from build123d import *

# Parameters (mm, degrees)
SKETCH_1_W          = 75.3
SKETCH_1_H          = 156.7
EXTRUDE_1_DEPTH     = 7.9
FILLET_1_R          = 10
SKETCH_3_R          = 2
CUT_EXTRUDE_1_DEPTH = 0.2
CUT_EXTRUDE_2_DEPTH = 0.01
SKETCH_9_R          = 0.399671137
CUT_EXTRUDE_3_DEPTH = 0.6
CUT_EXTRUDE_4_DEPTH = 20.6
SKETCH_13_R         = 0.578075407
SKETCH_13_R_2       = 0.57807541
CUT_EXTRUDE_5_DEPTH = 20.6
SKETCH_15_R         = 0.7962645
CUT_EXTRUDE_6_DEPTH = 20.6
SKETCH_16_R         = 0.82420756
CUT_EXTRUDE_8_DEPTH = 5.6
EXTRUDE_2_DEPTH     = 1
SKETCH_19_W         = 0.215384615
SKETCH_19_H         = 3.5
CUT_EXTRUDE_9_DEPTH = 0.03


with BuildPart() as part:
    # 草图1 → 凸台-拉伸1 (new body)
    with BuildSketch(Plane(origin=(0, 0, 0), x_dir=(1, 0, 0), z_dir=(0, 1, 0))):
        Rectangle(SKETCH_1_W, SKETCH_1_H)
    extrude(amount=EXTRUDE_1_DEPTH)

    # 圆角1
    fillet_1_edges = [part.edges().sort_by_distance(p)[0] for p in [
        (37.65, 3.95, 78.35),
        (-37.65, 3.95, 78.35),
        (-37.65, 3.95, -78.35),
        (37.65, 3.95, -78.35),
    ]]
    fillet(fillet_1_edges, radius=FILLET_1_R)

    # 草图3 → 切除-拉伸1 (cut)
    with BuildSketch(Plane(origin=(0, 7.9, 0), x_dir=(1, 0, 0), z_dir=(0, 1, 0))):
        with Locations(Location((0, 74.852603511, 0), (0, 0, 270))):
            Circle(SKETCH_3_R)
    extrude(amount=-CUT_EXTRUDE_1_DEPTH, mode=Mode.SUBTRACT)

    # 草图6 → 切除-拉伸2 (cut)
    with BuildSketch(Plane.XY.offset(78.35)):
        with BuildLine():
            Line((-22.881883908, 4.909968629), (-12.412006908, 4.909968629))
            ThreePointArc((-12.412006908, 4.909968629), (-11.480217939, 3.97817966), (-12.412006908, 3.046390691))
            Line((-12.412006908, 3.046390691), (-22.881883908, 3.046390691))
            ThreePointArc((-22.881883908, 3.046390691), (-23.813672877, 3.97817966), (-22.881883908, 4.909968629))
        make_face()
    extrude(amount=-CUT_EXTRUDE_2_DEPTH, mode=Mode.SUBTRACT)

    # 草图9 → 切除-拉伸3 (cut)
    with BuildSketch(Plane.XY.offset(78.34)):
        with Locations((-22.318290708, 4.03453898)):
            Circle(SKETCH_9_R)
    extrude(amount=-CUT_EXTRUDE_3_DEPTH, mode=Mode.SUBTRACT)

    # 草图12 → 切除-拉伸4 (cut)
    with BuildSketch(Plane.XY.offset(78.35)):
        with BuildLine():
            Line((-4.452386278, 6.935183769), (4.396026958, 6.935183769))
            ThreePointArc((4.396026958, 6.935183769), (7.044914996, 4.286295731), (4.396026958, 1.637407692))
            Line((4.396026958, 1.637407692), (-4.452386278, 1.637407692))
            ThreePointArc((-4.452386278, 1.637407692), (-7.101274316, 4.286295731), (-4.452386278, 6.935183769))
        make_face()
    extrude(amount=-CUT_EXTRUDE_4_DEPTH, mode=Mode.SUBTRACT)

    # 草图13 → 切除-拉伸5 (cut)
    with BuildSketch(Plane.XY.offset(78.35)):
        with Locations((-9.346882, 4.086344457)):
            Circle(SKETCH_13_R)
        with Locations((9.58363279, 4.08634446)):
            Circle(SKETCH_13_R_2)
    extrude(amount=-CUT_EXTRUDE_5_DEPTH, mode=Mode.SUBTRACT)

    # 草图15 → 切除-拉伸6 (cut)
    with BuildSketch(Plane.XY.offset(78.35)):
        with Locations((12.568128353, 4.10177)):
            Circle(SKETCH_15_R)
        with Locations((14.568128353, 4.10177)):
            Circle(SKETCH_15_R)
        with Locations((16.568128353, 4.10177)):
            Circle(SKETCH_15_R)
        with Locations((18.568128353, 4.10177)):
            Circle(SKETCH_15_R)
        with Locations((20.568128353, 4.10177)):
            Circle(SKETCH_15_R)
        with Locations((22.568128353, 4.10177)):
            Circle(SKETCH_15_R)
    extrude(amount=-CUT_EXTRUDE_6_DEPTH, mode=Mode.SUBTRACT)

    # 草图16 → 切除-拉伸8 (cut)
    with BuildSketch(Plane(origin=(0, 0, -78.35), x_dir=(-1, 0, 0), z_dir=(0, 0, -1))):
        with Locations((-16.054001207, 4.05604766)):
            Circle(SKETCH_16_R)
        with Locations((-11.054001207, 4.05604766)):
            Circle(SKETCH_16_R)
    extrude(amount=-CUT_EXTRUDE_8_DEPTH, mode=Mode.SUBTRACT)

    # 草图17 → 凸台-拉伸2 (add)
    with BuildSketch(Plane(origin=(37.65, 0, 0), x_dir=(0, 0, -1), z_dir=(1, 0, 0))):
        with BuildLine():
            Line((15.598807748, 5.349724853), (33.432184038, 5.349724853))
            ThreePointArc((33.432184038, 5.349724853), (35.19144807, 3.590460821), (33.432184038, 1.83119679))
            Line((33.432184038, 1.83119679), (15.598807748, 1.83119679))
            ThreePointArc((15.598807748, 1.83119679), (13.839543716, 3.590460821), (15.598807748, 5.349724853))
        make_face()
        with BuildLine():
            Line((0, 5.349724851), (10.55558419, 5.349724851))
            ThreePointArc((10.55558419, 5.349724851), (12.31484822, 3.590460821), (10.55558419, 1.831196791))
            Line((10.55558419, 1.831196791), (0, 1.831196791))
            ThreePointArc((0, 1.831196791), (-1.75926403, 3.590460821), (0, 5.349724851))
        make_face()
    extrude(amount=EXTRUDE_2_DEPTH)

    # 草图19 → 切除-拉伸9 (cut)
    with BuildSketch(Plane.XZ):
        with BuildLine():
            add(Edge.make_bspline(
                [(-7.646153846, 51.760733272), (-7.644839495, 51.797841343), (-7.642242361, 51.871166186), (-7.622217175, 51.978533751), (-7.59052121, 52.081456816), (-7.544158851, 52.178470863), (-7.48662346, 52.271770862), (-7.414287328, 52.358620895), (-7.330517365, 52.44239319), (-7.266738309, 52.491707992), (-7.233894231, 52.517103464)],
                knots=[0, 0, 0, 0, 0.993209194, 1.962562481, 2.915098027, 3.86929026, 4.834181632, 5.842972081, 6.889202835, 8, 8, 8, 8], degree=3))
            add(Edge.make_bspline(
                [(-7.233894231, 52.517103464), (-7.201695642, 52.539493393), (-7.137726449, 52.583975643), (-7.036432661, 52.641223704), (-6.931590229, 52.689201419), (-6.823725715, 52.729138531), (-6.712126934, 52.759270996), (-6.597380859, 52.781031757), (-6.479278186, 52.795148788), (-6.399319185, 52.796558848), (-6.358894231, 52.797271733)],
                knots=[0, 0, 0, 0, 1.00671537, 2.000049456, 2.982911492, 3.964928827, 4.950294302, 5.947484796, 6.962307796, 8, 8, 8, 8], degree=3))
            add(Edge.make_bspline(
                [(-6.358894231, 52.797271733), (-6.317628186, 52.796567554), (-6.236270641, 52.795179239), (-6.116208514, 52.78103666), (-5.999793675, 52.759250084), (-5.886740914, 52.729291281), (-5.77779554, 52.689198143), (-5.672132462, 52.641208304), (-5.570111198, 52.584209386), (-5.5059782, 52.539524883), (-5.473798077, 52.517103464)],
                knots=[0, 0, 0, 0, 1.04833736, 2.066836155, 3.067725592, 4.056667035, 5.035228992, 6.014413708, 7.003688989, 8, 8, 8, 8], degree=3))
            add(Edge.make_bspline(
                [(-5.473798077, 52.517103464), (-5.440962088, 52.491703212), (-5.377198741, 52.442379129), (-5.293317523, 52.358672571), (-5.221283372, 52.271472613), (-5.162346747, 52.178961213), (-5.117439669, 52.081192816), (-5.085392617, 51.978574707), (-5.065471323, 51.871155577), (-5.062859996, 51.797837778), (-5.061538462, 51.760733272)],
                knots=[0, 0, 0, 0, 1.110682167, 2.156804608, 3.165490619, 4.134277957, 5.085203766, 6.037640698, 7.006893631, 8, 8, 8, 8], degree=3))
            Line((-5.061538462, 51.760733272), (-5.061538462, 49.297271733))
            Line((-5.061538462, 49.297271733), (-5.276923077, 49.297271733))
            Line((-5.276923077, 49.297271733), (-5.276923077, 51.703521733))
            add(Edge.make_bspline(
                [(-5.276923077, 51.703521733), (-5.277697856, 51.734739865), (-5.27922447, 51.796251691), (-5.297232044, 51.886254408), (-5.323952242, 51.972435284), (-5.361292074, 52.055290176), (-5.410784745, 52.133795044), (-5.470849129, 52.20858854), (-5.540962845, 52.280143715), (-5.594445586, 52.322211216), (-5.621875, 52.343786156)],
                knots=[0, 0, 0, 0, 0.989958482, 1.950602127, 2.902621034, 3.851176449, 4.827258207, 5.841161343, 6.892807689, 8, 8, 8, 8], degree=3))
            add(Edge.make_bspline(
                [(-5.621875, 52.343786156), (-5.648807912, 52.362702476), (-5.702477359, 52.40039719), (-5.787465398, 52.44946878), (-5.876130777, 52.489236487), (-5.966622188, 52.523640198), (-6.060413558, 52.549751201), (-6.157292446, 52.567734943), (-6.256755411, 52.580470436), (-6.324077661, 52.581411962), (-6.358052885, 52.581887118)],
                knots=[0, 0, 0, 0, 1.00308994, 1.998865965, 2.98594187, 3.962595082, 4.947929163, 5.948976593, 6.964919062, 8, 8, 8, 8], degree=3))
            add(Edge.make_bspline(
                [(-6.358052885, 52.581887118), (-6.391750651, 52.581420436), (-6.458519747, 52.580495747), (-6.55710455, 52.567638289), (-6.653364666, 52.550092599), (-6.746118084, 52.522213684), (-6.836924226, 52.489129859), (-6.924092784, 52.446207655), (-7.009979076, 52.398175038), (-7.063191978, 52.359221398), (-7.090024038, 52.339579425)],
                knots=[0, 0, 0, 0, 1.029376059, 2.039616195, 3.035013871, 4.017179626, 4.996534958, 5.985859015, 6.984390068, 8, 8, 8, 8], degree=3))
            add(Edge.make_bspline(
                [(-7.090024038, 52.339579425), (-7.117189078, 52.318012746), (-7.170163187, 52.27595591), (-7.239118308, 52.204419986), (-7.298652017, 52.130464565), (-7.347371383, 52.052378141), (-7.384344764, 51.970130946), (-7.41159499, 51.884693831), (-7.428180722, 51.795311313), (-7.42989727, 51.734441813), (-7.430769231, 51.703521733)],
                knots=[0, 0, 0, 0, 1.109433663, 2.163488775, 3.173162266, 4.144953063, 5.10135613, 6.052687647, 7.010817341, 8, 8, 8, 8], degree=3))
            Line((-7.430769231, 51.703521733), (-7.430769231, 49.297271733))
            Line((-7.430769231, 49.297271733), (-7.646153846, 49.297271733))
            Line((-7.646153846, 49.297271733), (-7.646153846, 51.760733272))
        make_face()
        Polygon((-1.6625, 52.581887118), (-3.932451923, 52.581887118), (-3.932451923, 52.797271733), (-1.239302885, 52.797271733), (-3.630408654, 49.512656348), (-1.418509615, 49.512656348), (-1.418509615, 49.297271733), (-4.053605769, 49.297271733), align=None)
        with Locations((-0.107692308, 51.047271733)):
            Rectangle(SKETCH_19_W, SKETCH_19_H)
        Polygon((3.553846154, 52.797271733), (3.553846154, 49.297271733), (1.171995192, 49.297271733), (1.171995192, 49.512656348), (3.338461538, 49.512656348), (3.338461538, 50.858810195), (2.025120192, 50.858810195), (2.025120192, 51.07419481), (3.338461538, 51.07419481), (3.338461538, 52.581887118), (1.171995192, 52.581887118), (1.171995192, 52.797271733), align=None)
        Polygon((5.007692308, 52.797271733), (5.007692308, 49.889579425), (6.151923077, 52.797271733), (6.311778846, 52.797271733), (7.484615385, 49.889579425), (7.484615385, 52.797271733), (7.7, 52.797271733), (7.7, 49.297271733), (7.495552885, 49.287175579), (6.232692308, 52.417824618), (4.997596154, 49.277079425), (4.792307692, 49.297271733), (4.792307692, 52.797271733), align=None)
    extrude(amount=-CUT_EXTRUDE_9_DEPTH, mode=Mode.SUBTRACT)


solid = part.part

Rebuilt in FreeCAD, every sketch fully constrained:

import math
import FreeCAD as App
import Part
import Sketcher
from FreeCAD import Vector
Q = App.Units.Quantity


def edges_at(feature, points):
    """Names of the edges that pass closest to the given points."""
    edges = feature.Shape.Edges
    near = lambda p: min(range(len(edges)), key=lambda i: edges[i].distToShape(Part.Vertex(*p))[0])
    return sorted({f"Edge{near(p) + 1}" for p in points})

doc = App.newDocument("Part")
body = doc.addObject("PartDesign::Body", "Body")

# Sketch on XZ plane
sketch1 = doc.addObject("Sketcher::SketchObject", "Sketch")
body.addObject(sketch1)
sketch1.AttachmentSupport = (doc.XZ_Plane, [""])
sketch1.MapMode = "FlatFace"
sketch1.addGeometry(Part.LineSegment(Vector(-37.65, -78.35, 0), Vector(-37.65, 78.35, 0)), False)
sketch1.addGeometry(Part.LineSegment(Vector(-37.65, 78.35, 0), Vector(37.65, 78.35, 0)), False)
sketch1.addGeometry(Part.LineSegment(Vector(37.65, 78.35, 0), Vector(37.65, -78.35, 0)), False)
sketch1.addGeometry(Part.LineSegment(Vector(37.65, -78.35, 0), Vector(-37.65, -78.35, 0)), False)
sketch1.addConstraint(Sketcher.Constraint("Coincident", 0, 2, 1, 1))
sketch1.addConstraint(Sketcher.Constraint("Coincident", 1, 2, 2, 1))
sketch1.addConstraint(Sketcher.Constraint("Coincident", 2, 2, 3, 1))
sketch1.addConstraint(Sketcher.Constraint("Coincident", 3, 2, 0, 1))
sketch1.addConstraint(Sketcher.Constraint("Vertical", 0))
sketch1.addConstraint(Sketcher.Constraint("Horizontal", 1))
sketch1.addConstraint(Sketcher.Constraint("Vertical", 2))
sketch1.addConstraint(Sketcher.Constraint("Horizontal", 3))
sketch1.addConstraint(Sketcher.Constraint("Symmetric", 0, 2, 2, 2, -1, 1))
sketch1.addConstraint(Sketcher.Constraint("DistanceX", 1, 1, 1, 2, Q("75.3 mm")))
sketch1.addConstraint(Sketcher.Constraint("DistanceY", 0, 1, 0, 2, Q("156.7 mm")))
pad1 = doc.addObject("PartDesign::Pad", "Pad")
body.addObject(pad1)
pad1.Profile = sketch1
pad1.Length = 7.9
pad1.Reversed = True
doc.recompute()

fillet = doc.addObject("PartDesign::Fillet", "Fillet")
body.addObject(fillet)
fillet.Base = (pad1, edges_at(pad1, [
    (37.65, 3.95, 78.35),
    (-37.65, 3.95, 78.35),
    (-37.65, 3.95, -78.35),
    (37.65, 3.95, -78.35),
]))
fillet.Radius = 10

# Sketch on XZ plane
sketch2 = doc.addObject("Sketcher::SketchObject", "Sketch001")
body.addObject(sketch2)
sketch2.AttachmentSupport = (doc.XZ_Plane, [""])
sketch2.MapMode = "FlatFace"
sketch2.AttachmentOffset = App.Placement(Vector(0, 0, -7.9), App.Rotation())
sketch2.addGeometry(Part.Circle(Vector(0, -74.852604, 0), Vector(0, 0, 1), 2), False)
sketch2.addConstraint(Sketcher.Constraint("PointOnObject", 0, 3, -2))
sketch2.addConstraint(Sketcher.Constraint("Diameter", 0, Q("4 mm")))
sketch2.addConstraint(Sketcher.Constraint("DistanceY", 0, 3, -1, 1, Q("74.852604 mm")))
pocket1 = doc.addObject("PartDesign::Pocket", "Pocket")
body.addObject(pocket1)
pocket1.Profile = sketch2
pocket1.Length = 0.2
pocket1.Reversed = True

# Sketch on XY plane
sketch3 = doc.addObject("Sketcher::SketchObject", "Sketch002")
body.addObject(sketch3)
sketch3.AttachmentSupport = (doc.XY_Plane, [""])
sketch3.MapMode = "FlatFace"
sketch3.AttachmentOffset = App.Placement(Vector(0, 0, 78.35), App.Rotation())
sketch3.addGeometry(Part.LineSegment(Vector(-12.412007, 4.909969, 0), Vector(-22.881884, 4.909969, 0)), False)
sketch3.addGeometry(Part.ArcOfCircle(Part.Circle(Vector(-22.881884, 3.97818, 0), Vector(0, 0, 1), 0.931789), math.radians(90), math.radians(270)), False)
sketch3.addGeometry(Part.LineSegment(Vector(-22.881884, 3.046391, 0), Vector(-12.412007, 3.046391, 0)), False)
sketch3.addGeometry(Part.ArcOfCircle(Part.Circle(Vector(-12.412007, 3.97818, 0), Vector(0, 0, 1), 0.931789), math.radians(-90), math.radians(90)), False)
sketch3.addConstraint(Sketcher.Constraint("Tangent", 0, 2, 1, 1))
sketch3.addConstraint(Sketcher.Constraint("Tangent", 1, 2, 2, 1))
sketch3.addConstraint(Sketcher.Constraint("Tangent", 2, 2, 3, 1))
sketch3.addConstraint(Sketcher.Constraint("Tangent", 3, 2, 0, 1))
sketch3.addConstraint(Sketcher.Constraint("Horizontal", 0))
sketch3.addConstraint(Sketcher.Constraint("Horizontal", 2))
sketch3.addConstraint(Sketcher.Constraint("Radius", 1, Q("0.931789 mm")))
sketch3.addConstraint(Sketcher.Constraint("DistanceX", 0, 2, 0, 1, Q("10.469877 mm")))
sketch3.addConstraint(Sketcher.Constraint("DistanceY", -1, 1, 1, 3, Q("3.97818 mm")))
sketch3.addConstraint(Sketcher.Constraint("DistanceX", 1, 3, -1, 1, Q("22.881884 mm")))
pocket2 = doc.addObject("PartDesign::Pocket", "Pocket001")
body.addObject(pocket2)
pocket2.Profile = sketch3
pocket2.Length = 0.01

# Sketch on XY plane
sketch4 = doc.addObject("Sketcher::SketchObject", "Sketch003")
body.addObject(sketch4)
sketch4.AttachmentSupport = (doc.XY_Plane, [""])
sketch4.MapMode = "FlatFace"
sketch4.AttachmentOffset = App.Placement(Vector(0, 0, 78.34), App.Rotation())
sketch4.addGeometry(Part.Circle(Vector(-22.318291, 4.034539, 0), Vector(0, 0, 1), 0.399671), False)
sketch4.addConstraint(Sketcher.Constraint("Diameter", 0, Q("0.799342 mm")))
sketch4.addConstraint(Sketcher.Constraint("DistanceX", 0, 3, -1, 1, Q("22.318291 mm")))
sketch4.addConstraint(Sketcher.Constraint("DistanceY", -1, 1, 0, 3, Q("4.034539 mm")))
pocket3 = doc.addObject("PartDesign::Pocket", "Pocket002")
body.addObject(pocket3)
pocket3.Profile = sketch4
pocket3.Length = 0.6

# Sketch on XY plane
sketch5 = doc.addObject("Sketcher::SketchObject", "Sketch004")
body.addObject(sketch5)
sketch5.AttachmentSupport = (doc.XY_Plane, [""])
sketch5.MapMode = "FlatFace"
sketch5.AttachmentOffset = App.Placement(Vector(0, 0, 78.35), App.Rotation())
sketch5.addGeometry(Part.LineSegment(Vector(4.396027, 6.935184, 0), Vector(-4.452386, 6.935184, 0)), False)
sketch5.addGeometry(Part.ArcOfCircle(Part.Circle(Vector(-4.452386, 4.286296, 0), Vector(0, 0, 1), 2.648888), math.radians(90), math.radians(270)), False)
sketch5.addGeometry(Part.LineSegment(Vector(-4.452386, 1.637408, 0), Vector(4.396027, 1.637408, 0)), False)
sketch5.addGeometry(Part.ArcOfCircle(Part.Circle(Vector(4.396027, 4.286296, 0), Vector(0, 0, 1), 2.648888), math.radians(-90), math.radians(90)), False)
sketch5.addConstraint(Sketcher.Constraint("Tangent", 0, 2, 1, 1))
sketch5.addConstraint(Sketcher.Constraint("Tangent", 1, 2, 2, 1))
sketch5.addConstraint(Sketcher.Constraint("Tangent", 2, 2, 3, 1))
sketch5.addConstraint(Sketcher.Constraint("Tangent", 3, 2, 0, 1))
sketch5.addConstraint(Sketcher.Constraint("Horizontal", 0))
sketch5.addConstraint(Sketcher.Constraint("Horizontal", 2))
sketch5.addConstraint(Sketcher.Constraint("Radius", 1, Q("2.648888 mm")))
sketch5.addConstraint(Sketcher.Constraint("DistanceX", 0, 2, 0, 1, Q("8.848413 mm")))
sketch5.addConstraint(Sketcher.Constraint("DistanceX", 1, 3, -1, 1, Q("4.452386 mm")))
sketch5.addConstraint(Sketcher.Constraint("DistanceY", -1, 1, 1, 3, Q("4.286296 mm")))
pocket4 = doc.addObject("PartDesign::Pocket", "Pocket003")
body.addObject(pocket4)
pocket4.Profile = sketch5
pocket4.Length = 20.6

# Sketch on XY plane
sketch6 = doc.addObject("Sketcher::SketchObject", "Sketch005")
body.addObject(sketch6)
sketch6.AttachmentSupport = (doc.XY_Plane, [""])
sketch6.MapMode = "FlatFace"
sketch6.AttachmentOffset = App.Placement(Vector(0, 0, 78.35), App.Rotation())
sketch6.addGeometry(Part.Circle(Vector(-9.346882, 4.086344, 0), Vector(0, 0, 1), 0.578075), False)
sketch6.addGeometry(Part.Circle(Vector(9.583633, 4.086344, 0), Vector(0, 0, 1), 0.578075), False)
sketch6.addConstraint(Sketcher.Constraint("Equal", 0, 1))
sketch6.addConstraint(Sketcher.Constraint("Horizontal", 0, 3, 1, 3))
sketch6.addConstraint(Sketcher.Constraint("Diameter", 0, Q("1.156151 mm")))
sketch6.addConstraint(Sketcher.Constraint("DistanceX", 0, 3, -1, 1, Q("9.346882 mm")))
sketch6.addConstraint(Sketcher.Constraint("DistanceY", -1, 1, 0, 3, Q("4.086344 mm")))
sketch6.addConstraint(Sketcher.Constraint("DistanceX", -1, 1, 1, 3, Q("9.583633 mm")))
pocket5 = doc.addObject("PartDesign::Pocket", "Pocket004")
body.addObject(pocket5)
pocket5.Profile = sketch6
pocket5.Length = 20.6

# Sketch on XY plane
sketch7 = doc.addObject("Sketcher::SketchObject", "Sketch006")
body.addObject(sketch7)
sketch7.AttachmentSupport = (doc.XY_Plane, [""])
sketch7.MapMode = "FlatFace"
sketch7.AttachmentOffset = App.Placement(Vector(0, 0, 78.35), App.Rotation())
sketch7.addGeometry(Part.Circle(Vector(12.568128, 4.10177, 0), Vector(0, 0, 1), 0.796265), False)
sketch7.addGeometry(Part.Circle(Vector(14.568128, 4.10177, 0), Vector(0, 0, 1), 0.796265), False)
sketch7.addGeometry(Part.Circle(Vector(16.568128, 4.10177, 0), Vector(0, 0, 1), 0.796265), False)
sketch7.addGeometry(Part.Circle(Vector(18.568128, 4.10177, 0), Vector(0, 0, 1), 0.796265), False)
sketch7.addGeometry(Part.Circle(Vector(20.568128, 4.10177, 0), Vector(0, 0, 1), 0.796265), False)
sketch7.addGeometry(Part.Circle(Vector(22.568128, 4.10177, 0), Vector(0, 0, 1), 0.796265), False)
sketch7.addConstraint(Sketcher.Constraint("Equal", 0, 1))
sketch7.addConstraint(Sketcher.Constraint("Equal", 1, 2))
sketch7.addConstraint(Sketcher.Constraint("Equal", 2, 3))
sketch7.addConstraint(Sketcher.Constraint("Equal", 3, 4))
sketch7.addConstraint(Sketcher.Constraint("Equal", 4, 5))
sketch7.addConstraint(Sketcher.Constraint("Horizontal", 0, 3, 1, 3))
sketch7.addConstraint(Sketcher.Constraint("Horizontal", 1, 3, 2, 3))
sketch7.addConstraint(Sketcher.Constraint("Horizontal", 2, 3, 3, 3))
sketch7.addConstraint(Sketcher.Constraint("Horizontal", 3, 3, 4, 3))
sketch7.addConstraint(Sketcher.Constraint("Horizontal", 4, 3, 5, 3))
sketch7.addConstraint(Sketcher.Constraint("DistanceX", 0, 3, 1, 3, Q("2 mm")))
sketch7.addConstraint(Sketcher.Constraint("DistanceX", 1, 3, 2, 3, Q("2 mm")))
sketch7.addConstraint(Sketcher.Constraint("DistanceX", 2, 3, 3, 3, Q("2 mm")))
sketch7.addConstraint(Sketcher.Constraint("DistanceX", 3, 3, 4, 3, Q("2 mm")))
sketch7.addConstraint(Sketcher.Constraint("DistanceX", 4, 3, 5, 3, Q("2 mm")))
sketch7.addConstraint(Sketcher.Constraint("Diameter", 0, Q("1.592529 mm")))
sketch7.addConstraint(Sketcher.Constraint("DistanceX", -1, 1, 0, 3, Q("12.568128 mm")))
sketch7.addConstraint(Sketcher.Constraint("DistanceY", -1, 1, 0, 3, Q("4.10177 mm")))
pocket6 = doc.addObject("PartDesign::Pocket", "Pocket005")
body.addObject(pocket6)
pocket6.Profile = sketch7
pocket6.Length = 20.6

# Sketch on XY plane
sketch8 = doc.addObject("Sketcher::SketchObject", "Sketch007")
body.addObject(sketch8)
sketch8.AttachmentSupport = (doc.XY_Plane, [""])
sketch8.MapMode = "FlatFace"
sketch8.AttachmentOffset = App.Placement(Vector(0, 0, -78.35), App.Rotation())
sketch8.addGeometry(Part.Circle(Vector(16.054001, 4.056048, 0), Vector(0, 0, 1), 0.824208), False)
sketch8.addGeometry(Part.Circle(Vector(11.054001, 4.056048, 0), Vector(0, 0, 1), 0.824208), False)
sketch8.addConstraint(Sketcher.Constraint("Equal", 0, 1))
sketch8.addConstraint(Sketcher.Constraint("Horizontal", 0, 3, 1, 3))
sketch8.addConstraint(Sketcher.Constraint("DistanceX", 1, 3, 0, 3, Q("5 mm")))
sketch8.addConstraint(Sketcher.Constraint("Diameter", 0, Q("1.648415 mm")))
sketch8.addConstraint(Sketcher.Constraint("DistanceX", -1, 1, 0, 3, Q("16.054001 mm")))
sketch8.addConstraint(Sketcher.Constraint("DistanceY", -1, 1, 0, 3, Q("4.056048 mm")))
pocket7 = doc.addObject("PartDesign::Pocket", "Pocket006")
body.addObject(pocket7)
pocket7.Profile = sketch8
pocket7.Length = 5.6
pocket7.Reversed = True

# Sketch on YZ plane
sketch9 = doc.addObject("Sketcher::SketchObject", "Sketch008")
body.addObject(sketch9)
sketch9.AttachmentSupport = (doc.YZ_Plane, [""])
sketch9.MapMode = "FlatFace"
sketch9.AttachmentOffset = App.Placement(Vector(0, 0, 37.65), App.Rotation())
sketch9.addGeometry(Part.LineSegment(Vector(5.349725, -33.432184, 0), Vector(5.349725, -15.598808, 0)), False)
sketch9.addGeometry(Part.ArcOfCircle(Part.Circle(Vector(3.590461, -15.598808, 0), Vector(0, 0, 1), 1.759264), math.radians(0), math.radians(180)), False)
sketch9.addGeometry(Part.LineSegment(Vector(1.831197, -15.598808, 0), Vector(1.831197, -33.432184, 0)), False)
sketch9.addGeometry(Part.ArcOfCircle(Part.Circle(Vector(3.590461, -33.432184, 0), Vector(0, 0, 1), 1.759264), math.radians(180), math.radians(360)), False)
sketch9.addGeometry(Part.LineSegment(Vector(5.349725, -10.555584, 0), Vector(5.349725, 0, 0)), False)
sketch9.addGeometry(Part.ArcOfCircle(Part.Circle(Vector(3.590461, 0, 0), Vector(0, 0, 1), 1.759264), math.radians(0), math.radians(180)), False)
sketch9.addGeometry(Part.LineSegment(Vector(1.831197, 0, 0), Vector(1.831197, -10.555584, 0)), False)
sketch9.addGeometry(Part.ArcOfCircle(Part.Circle(Vector(3.590461, -10.555584, 0), Vector(0, 0, 1), 1.759264), math.radians(180), math.radians(360)), False)
sketch9.addConstraint(Sketcher.Constraint("Tangent", 0, 2, 1, 1))
sketch9.addConstraint(Sketcher.Constraint("Tangent", 1, 2, 2, 1))
sketch9.addConstraint(Sketcher.Constraint("Tangent", 2, 2, 3, 1))
sketch9.addConstraint(Sketcher.Constraint("Tangent", 3, 2, 0, 1))
sketch9.addConstraint(Sketcher.Constraint("Tangent", 4, 2, 5, 1))
sketch9.addConstraint(Sketcher.Constraint("Tangent", 5, 2, 6, 1))
sketch9.addConstraint(Sketcher.Constraint("Tangent", 6, 2, 7, 1))
sketch9.addConstraint(Sketcher.Constraint("Tangent", 7, 2, 4, 1))
sketch9.addConstraint(Sketcher.Constraint("Vertical", 0))
sketch9.addConstraint(Sketcher.Constraint("Vertical", 2))
sketch9.addConstraint(Sketcher.Constraint("Vertical", 4))
sketch9.addConstraint(Sketcher.Constraint("Vertical", 6))
sketch9.addConstraint(Sketcher.Constraint("Equal", 3, 5))
sketch9.addConstraint(Sketcher.Constraint("PointOnObject", 5, 3, -1))
sketch9.addConstraint(Sketcher.Constraint("Vertical", 3, 3, 5, 3))
sketch9.addConstraint(Sketcher.Constraint("Radius", 1, Q("1.759264 mm")))
sketch9.addConstraint(Sketcher.Constraint("DistanceY", 3, 3, 7, 3, Q("22.8766 mm")))
sketch9.addConstraint(Sketcher.Constraint("DistanceY", 0, 1, 0, 2, Q("17.833376 mm")))
sketch9.addConstraint(Sketcher.Constraint("DistanceY", 4, 1, 4, 2, Q("10.555584 mm")))
sketch9.addConstraint(Sketcher.Constraint("DistanceX", -1, 1, 1, 3, Q("3.590461 mm")))
pad2 = doc.addObject("PartDesign::Pad", "Pad001")
body.addObject(pad2)
pad2.Profile = sketch9
pad2.Length = 1

# Sketch on XZ plane
sketch10 = doc.addObject("Sketcher::SketchObject", "Sketch009")
body.addObject(sketch10)
sketch10.AttachmentSupport = (doc.XZ_Plane, [""])
sketch10.MapMode = "FlatFace"
sketch10.addGeometry(Part.BSplineCurve([Vector(-7.646154, 51.760733, 0), Vector(-7.644839, 51.797841, 0), Vector(-7.642242, 51.871166, 0), Vector(-7.622217, 51.978534, 0), Vector(-7.590521, 52.081457, 0), Vector(-7.544159, 52.178471, 0), Vector(-7.486623, 52.271771, 0), Vector(-7.414287, 52.358621, 0), Vector(-7.330517, 52.442393, 0), Vector(-7.266738, 52.491708, 0), Vector(-7.233894, 52.517103, 0)], [4, 1, 1, 1, 1, 1, 1, 1, 4], [0, 0.993209194, 1.962562481, 2.915098027, 3.86929026, 4.834181632, 5.842972081, 6.889202835, 8], False, 3, [1, 1, 1, 1, 1, 1, 1, 1, 1, 1, 1], False), False)
sketch10.addGeometry(Part.LineSegment(Vector(-7.646154, 51.760733, 0), Vector(-7.646154, 49.297272, 0)), False)
sketch10.addGeometry(Part.LineSegment(Vector(-7.646154, 49.297272, 0), Vector(-7.430769, 49.297272, 0)), False)
sketch10.addGeometry(Part.LineSegment(Vector(-7.430769, 49.297272, 0), Vector(-7.430769, 51.703522, 0)), False)
sketch10.addGeometry(Part.BSplineCurve([Vector(-7.090024, 52.339579, 0), Vector(-7.117189, 52.318013, 0), Vector(-7.170163, 52.275956, 0), Vector(-7.239118, 52.20442, 0), Vector(-7.298652, 52.130465, 0), Vector(-7.347371, 52.052378, 0), Vector(-7.384345, 51.970131, 0), Vector(-7.411595, 51.884694, 0), Vector(-7.428181, 51.795311, 0), Vector(-7.429897, 51.734442, 0), Vector(-7.430769, 51.703522, 0)], [4, 1, 1, 1, 1, 1, 1, 1, 4], [0, 1.109433663, 2.163488775, 3.173162266, 4.144953063, 5.10135613, 6.052687647, 7.010817341, 8], False, 3, [1, 1, 1, 1, 1, 1, 1, 1, 1, 1, 1], False), False)
sketch10.addGeometry(Part.BSplineCurve([Vector(-6.358053, 52.581887, 0), Vector(-6.391751, 52.58142, 0), Vector(-6.45852, 52.580496, 0), Vector(-6.557105, 52.567638, 0), Vector(-6.653365, 52.550093, 0), Vector(-6.746118, 52.522214, 0), Vector(-6.836924, 52.48913, 0), Vector(-6.924093, 52.446208, 0), Vector(-7.009979, 52.398175, 0), Vector(-7.063192, 52.359221, 0), Vector(-7.090024, 52.339579, 0)], [4, 1, 1, 1, 1, 1, 1, 1, 4], [0, 1.029376059, 2.039616195, 3.035013871, 4.017179626, 4.996534958, 5.985859015, 6.984390068, 8], False, 3, [1, 1, 1, 1, 1, 1, 1, 1, 1, 1, 1], False), False)
sketch10.addGeometry(Part.BSplineCurve([Vector(-5.621875, 52.343786, 0), Vector(-5.648808, 52.362702, 0), Vector(-5.702477, 52.400397, 0), Vector(-5.787465, 52.449469, 0), Vector(-5.876131, 52.489236, 0), Vector(-5.966622, 52.52364, 0), Vector(-6.060414, 52.549751, 0), Vector(-6.157292, 52.567735, 0), Vector(-6.256755, 52.58047, 0), Vector(-6.324078, 52.581412, 0), Vector(-6.358053, 52.581887, 0)], [4, 1, 1, 1, 1, 1, 1, 1, 4], [0, 1.00308994, 1.998865965, 2.98594187, 3.962595082, 4.947929163, 5.948976593, 6.964919062, 8], False, 3, [1, 1, 1, 1, 1, 1, 1, 1, 1, 1, 1], False), False)
sketch10.addGeometry(Part.BSplineCurve([Vector(-5.276923, 51.703522, 0), Vector(-5.277698, 51.73474, 0), Vector(-5.279224, 51.796252, 0), Vector(-5.297232, 51.886254, 0), Vector(-5.323952, 51.972435, 0), Vector(-5.361292, 52.05529, 0), Vector(-5.410785, 52.133795, 0), Vector(-5.470849, 52.208589, 0), Vector(-5.540963, 52.280144, 0), Vector(-5.594446, 52.322211, 0), Vector(-5.621875, 52.343786, 0)], [4, 1, 1, 1, 1, 1, 1, 1, 4], [0, 0.989958482, 1.950602127, 2.902621034, 3.851176449, 4.827258207, 5.841161343, 6.892807689, 8], False, 3, [1, 1, 1, 1, 1, 1, 1, 1, 1, 1, 1], False), False)
sketch10.addGeometry(Part.LineSegment(Vector(-5.276923, 51.703522, 0), Vector(-5.276923, 49.297272, 0)), False)
sketch10.addGeometry(Part.LineSegment(Vector(-5.276923, 49.297272, 0), Vector(-5.061538, 49.297272, 0)), False)
sketch10.addGeometry(Part.LineSegment(Vector(-5.061538, 49.297272, 0), Vector(-5.061538, 51.760733, 0)), False)
sketch10.addGeometry(Part.BSplineCurve([Vector(-5.473798, 52.517103, 0), Vector(-5.440962, 52.491703, 0), Vector(-5.377199, 52.442379, 0), Vector(-5.293318, 52.358673, 0), Vector(-5.221283, 52.271473, 0), Vector(-5.162347, 52.178961, 0), Vector(-5.11744, 52.081193, 0), Vector(-5.085393, 51.978575, 0), Vector(-5.065471, 51.871156, 0), Vector(-5.06286, 51.797838, 0), Vector(-5.061538, 51.760733, 0)], [4, 1, 1, 1, 1, 1, 1, 1, 4], [0, 1.110682167, 2.156804608, 3.165490619, 4.134277957, 5.085203766, 6.037640698, 7.006893631, 8], False, 3, [1, 1, 1, 1, 1, 1, 1, 1, 1, 1, 1], False), False)
sketch10.addGeometry(Part.BSplineCurve([Vector(-6.358894, 52.797272, 0), Vector(-6.317628, 52.796568, 0), Vector(-6.236271, 52.795179, 0), Vector(-6.116209, 52.781037, 0), Vector(-5.999794, 52.75925, 0), Vector(-5.886741, 52.729291, 0), Vector(-5.777796, 52.689198, 0), Vector(-5.672132, 52.641208, 0), Vector(-5.570111, 52.584209, 0), Vector(-5.505978, 52.539525, 0), Vector(-5.473798, 52.517103, 0)], [4, 1, 1, 1, 1, 1, 1, 1, 4], [0, 1.04833736, 2.066836155, 3.067725592, 4.056667035, 5.035228992, 6.014413708, 7.003688989, 8], False, 3, [1, 1, 1, 1, 1, 1, 1, 1, 1, 1, 1], False), False)
sketch10.addGeometry(Part.BSplineCurve([Vector(-7.233894, 52.517103, 0), Vector(-7.201696, 52.539493, 0), Vector(-7.137726, 52.583976, 0), Vector(-7.036433, 52.641224, 0), Vector(-6.93159, 52.689201, 0), Vector(-6.823726, 52.729139, 0), Vector(-6.712127, 52.759271, 0), Vector(-6.597381, 52.781032, 0), Vector(-6.479278, 52.795149, 0), Vector(-6.399319, 52.796559, 0), Vector(-6.358894, 52.797272, 0)], [4, 1, 1, 1, 1, 1, 1, 1, 4], [0, 1.00671537, 2.000049456, 2.982911492, 3.964928827, 4.950294302, 5.947484796, 6.962307796, 8], False, 3, [1, 1, 1, 1, 1, 1, 1, 1, 1, 1, 1], False), False)
sketch10.addGeometry(Part.LineSegment(Vector(-3.932452, 52.581887, 0), Vector(-1.6625, 52.581887, 0)), False)
sketch10.addGeometry(Part.LineSegment(Vector(-1.6625, 52.581887, 0), Vector(-4.053606, 49.297272, 0)), False)
sketch10.addGeometry(Part.LineSegment(Vector(-4.053606, 49.297272, 0), Vector(-1.41851, 49.297272, 0)), False)
sketch10.addGeometry(Part.LineSegment(Vector(-1.41851, 49.297272, 0), Vector(-1.41851, 49.512656, 0)), False)
sketch10.addGeometry(Part.LineSegment(Vector(-1.41851, 49.512656, 0), Vector(-3.630409, 49.512656, 0)), False)
sketch10.addGeometry(Part.LineSegment(Vector(-3.630409, 49.512656, 0), Vector(-1.239303, 52.797272, 0)), False)
sketch10.addGeometry(Part.LineSegment(Vector(-1.239303, 52.797272, 0), Vector(-3.932452, 52.797272, 0)), False)
sketch10.addGeometry(Part.LineSegment(Vector(-3.932452, 52.797272, 0), Vector(-3.932452, 52.581887, 0)), False)
sketch10.addGeometry(Part.LineSegment(Vector(-0.215385, 52.797272, 0), Vector(-0.215385, 49.297272, 0)), False)
sketch10.addGeometry(Part.LineSegment(Vector(-0.215385, 49.297272, 0), Vector(0, 49.297272, 0)), False)
sketch10.addGeometry(Part.LineSegment(Vector(0, 49.297272, 0), Vector(0, 52.797272, 0)), False)
sketch10.addGeometry(Part.LineSegment(Vector(0, 52.797272, 0), Vector(-0.215385, 52.797272, 0)), False)
sketch10.addGeometry(Part.LineSegment(Vector(3.553846, 49.297272, 0), Vector(3.553846, 52.797272, 0)), False)
sketch10.addGeometry(Part.LineSegment(Vector(3.553846, 52.797272, 0), Vector(1.171995, 52.797272, 0)), False)
sketch10.addGeometry(Part.LineSegment(Vector(1.171995, 52.797272, 0), Vector(1.171995, 52.581887, 0)), False)
sketch10.addGeometry(Part.LineSegment(Vector(1.171995, 52.581887, 0), Vector(3.338462, 52.581887, 0)), False)
sketch10.addGeometry(Part.LineSegment(Vector(3.338462, 52.581887, 0), Vector(3.338462, 51.074195, 0)), False)
sketch10.addGeometry(Part.LineSegment(Vector(3.338462, 51.074195, 0), Vector(2.02512, 51.074195, 0)), False)
sketch10.addGeometry(Part.LineSegment(Vector(2.02512, 51.074195, 0), Vector(2.02512, 50.85881, 0)), False)
sketch10.addGeometry(Part.LineSegment(Vector(2.02512, 50.85881, 0), Vector(3.338462, 50.85881, 0)), False)
sketch10.addGeometry(Part.LineSegment(Vector(3.338462, 50.85881, 0), Vector(3.338462, 49.512656, 0)), False)
sketch10.addGeometry(Part.LineSegment(Vector(3.338462, 49.512656, 0), Vector(1.171995, 49.512656, 0)), False)
sketch10.addGeometry(Part.LineSegment(Vector(1.171995, 49.512656, 0), Vector(1.171995, 49.297272, 0)), False)
sketch10.addGeometry(Part.LineSegment(Vector(1.171995, 49.297272, 0), Vector(3.553846, 49.297272, 0)), False)
sketch10.addGeometry(Part.LineSegment(Vector(5.007692, 49.889579, 0), Vector(5.007692, 52.797272, 0)), False)
sketch10.addGeometry(Part.LineSegment(Vector(5.007692, 52.797272, 0), Vector(4.792308, 52.797272, 0)), False)
sketch10.addGeometry(Part.LineSegment(Vector(4.792308, 52.797272, 0), Vector(4.792308, 49.297272, 0)), False)
sketch10.addGeometry(Part.LineSegment(Vector(4.792308, 49.297272, 0), Vector(4.997596, 49.277079, 0)), False)
sketch10.addGeometry(Part.LineSegment(Vector(4.997596, 49.277079, 0), Vector(6.232692, 52.417825, 0)), False)
sketch10.addGeometry(Part.LineSegment(Vector(6.232692, 52.417825, 0), Vector(7.495553, 49.287176, 0)), False)
sketch10.addGeometry(Part.LineSegment(Vector(7.495553, 49.287176, 0), Vector(7.7, 49.297272, 0)), False)
sketch10.addGeometry(Part.LineSegment(Vector(7.7, 49.297272, 0), Vector(7.7, 52.797272, 0)), False)
sketch10.addGeometry(Part.LineSegment(Vector(7.7, 52.797272, 0), Vector(7.484615, 52.797272, 0)), False)
sketch10.addGeometry(Part.LineSegment(Vector(7.484615, 52.797272, 0), Vector(7.484615, 49.889579, 0)), False)
sketch10.addGeometry(Part.LineSegment(Vector(7.484615, 49.889579, 0), Vector(6.311779, 52.797272, 0)), False)
sketch10.addGeometry(Part.LineSegment(Vector(6.311779, 52.797272, 0), Vector(6.151923, 52.797272, 0)), False)
sketch10.addGeometry(Part.LineSegment(Vector(6.151923, 52.797272, 0), Vector(5.007692, 49.889579, 0)), False)
sketch10.addConstraint(Sketcher.Constraint("Block", 0))
sketch10.addConstraint(Sketcher.Constraint("Block", 4))
sketch10.addConstraint(Sketcher.Constraint("Block", 5))
sketch10.addConstraint(Sketcher.Constraint("Block", 6))
sketch10.addConstraint(Sketcher.Constraint("Block", 7))
sketch10.addConstraint(Sketcher.Constraint("Block", 11))
sketch10.addConstraint(Sketcher.Constraint("Block", 12))
sketch10.addConstraint(Sketcher.Constraint("Block", 13))
sketch10.addConstraint(Sketcher.Constraint("Coincident", 0, 1, 1, 1))
sketch10.addConstraint(Sketcher.Constraint("Coincident", 1, 2, 2, 1))
sketch10.addConstraint(Sketcher.Constraint("Coincident", 2, 2, 3, 1))
sketch10.addConstraint(Sketcher.Constraint("Coincident", 3, 2, 4, 2))
sketch10.addConstraint(Sketcher.Constraint("Coincident", 7, 1, 8, 1))
sketch10.addConstraint(Sketcher.Constraint("Coincident", 8, 2, 9, 1))
sketch10.addConstraint(Sketcher.Constraint("Coincident", 9, 2, 10, 1))
sketch10.addConstraint(Sketcher.Constraint("Coincident", 10, 2, 11, 2))
sketch10.addConstraint(Sketcher.Constraint("Coincident", 14, 2, 15, 1))
sketch10.addConstraint(Sketcher.Constraint("Coincident", 15, 2, 16, 1))
sketch10.addConstraint(Sketcher.Constraint("Coincident", 16, 2, 17, 1))
sketch10.addConstraint(Sketcher.Constraint("Coincident", 17, 2, 18, 1))
sketch10.addConstraint(Sketcher.Constraint("Coincident", 18, 2, 19, 1))
sketch10.addConstraint(Sketcher.Constraint("Coincident", 19, 2, 20, 1))
sketch10.addConstraint(Sketcher.Constraint("Coincident", 20, 2, 21, 1))
sketch10.addConstraint(Sketcher.Constraint("Coincident", 21, 2, 14, 1))
sketch10.addConstraint(Sketcher.Constraint("Coincident", 22, 2, 23, 1))
sketch10.addConstraint(Sketcher.Constraint("Coincident", 23, 2, 24, 1))
sketch10.addConstraint(Sketcher.Constraint("Coincident", 24, 2, 25, 1))
sketch10.addConstraint(Sketcher.Constraint("Coincident", 25, 2, 22, 1))
sketch10.addConstraint(Sketcher.Constraint("Coincident", 26, 2, 27, 1))
sketch10.addConstraint(Sketcher.Constraint("Coincident", 27, 2, 28, 1))
sketch10.addConstraint(Sketcher.Constraint("Coincident", 28, 2, 29, 1))
sketch10.addConstraint(Sketcher.Constraint("Coincident", 29, 2, 30, 1))
sketch10.addConstraint(Sketcher.Constraint("Coincident", 30, 2, 31, 1))
sketch10.addConstraint(Sketcher.Constraint("Coincident", 31, 2, 32, 1))
sketch10.addConstraint(Sketcher.Constraint("Coincident", 32, 2, 33, 1))
sketch10.addConstraint(Sketcher.Constraint("Coincident", 33, 2, 34, 1))
sketch10.addConstraint(Sketcher.Constraint("Coincident", 34, 2, 35, 1))
sketch10.addConstraint(Sketcher.Constraint("Coincident", 35, 2, 36, 1))
sketch10.addConstraint(Sketcher.Constraint("Coincident", 36, 2, 37, 1))
sketch10.addConstraint(Sketcher.Constraint("Coincident", 37, 2, 26, 1))
sketch10.addConstraint(Sketcher.Constraint("Coincident", 38, 2, 39, 1))
sketch10.addConstraint(Sketcher.Constraint("Coincident", 39, 2, 40, 1))
sketch10.addConstraint(Sketcher.Constraint("Coincident", 40, 2, 41, 1))
sketch10.addConstraint(Sketcher.Constraint("Coincident", 41, 2, 42, 1))
sketch10.addConstraint(Sketcher.Constraint("Coincident", 42, 2, 43, 1))
sketch10.addConstraint(Sketcher.Constraint("Coincident", 43, 2, 44, 1))
sketch10.addConstraint(Sketcher.Constraint("Coincident", 44, 2, 45, 1))
sketch10.addConstraint(Sketcher.Constraint("Coincident", 45, 2, 46, 1))
sketch10.addConstraint(Sketcher.Constraint("Coincident", 46, 2, 47, 1))
sketch10.addConstraint(Sketcher.Constraint("Coincident", 47, 2, 48, 1))
sketch10.addConstraint(Sketcher.Constraint("Coincident", 48, 2, 49, 1))
sketch10.addConstraint(Sketcher.Constraint("Coincident", 49, 2, 50, 1))
sketch10.addConstraint(Sketcher.Constraint("Coincident", 50, 2, 38, 1))
sketch10.addConstraint(Sketcher.Constraint("Vertical", 1))
sketch10.addConstraint(Sketcher.Constraint("Horizontal", 2))
sketch10.addConstraint(Sketcher.Constraint("Vertical", 3))
sketch10.addConstraint(Sketcher.Constraint("Vertical", 8))
sketch10.addConstraint(Sketcher.Constraint("Horizontal", 9))
sketch10.addConstraint(Sketcher.Constraint("Vertical", 10))
sketch10.addConstraint(Sketcher.Constraint("Horizontal", 14))
sketch10.addConstraint(Sketcher.Constraint("Horizontal", 16))
sketch10.addConstraint(Sketcher.Constraint("Vertical", 17))
sketch10.addConstraint(Sketcher.Constraint("Horizontal", 18))
sketch10.addConstraint(Sketcher.Constraint("Horizontal", 20))
sketch10.addConstraint(Sketcher.Constraint("Vertical", 21))
sketch10.addConstraint(Sketcher.Constraint("Vertical", 22))
sketch10.addConstraint(Sketcher.Constraint("Horizontal", 23))
sketch10.addConstraint(Sketcher.Constraint("Vertical", 24))
sketch10.addConstraint(Sketcher.Constraint("Horizontal", 25))
sketch10.addConstraint(Sketcher.Constraint("Vertical", 26))
sketch10.addConstraint(Sketcher.Constraint("Horizontal", 27))
sketch10.addConstraint(Sketcher.Constraint("Vertical", 28))
sketch10.addConstraint(Sketcher.Constraint("Horizontal", 29))
sketch10.addConstraint(Sketcher.Constraint("Vertical", 30))
sketch10.addConstraint(Sketcher.Constraint("Horizontal", 31))
sketch10.addConstraint(Sketcher.Constraint("Vertical", 32))
sketch10.addConstraint(Sketcher.Constraint("Horizontal", 33))
sketch10.addConstraint(Sketcher.Constraint("Vertical", 34))
sketch10.addConstraint(Sketcher.Constraint("Horizontal", 35))
sketch10.addConstraint(Sketcher.Constraint("Vertical", 36))
sketch10.addConstraint(Sketcher.Constraint("Horizontal", 37))
sketch10.addConstraint(Sketcher.Constraint("Vertical", 38))
sketch10.addConstraint(Sketcher.Constraint("Horizontal", 39))
sketch10.addConstraint(Sketcher.Constraint("Vertical", 40))
sketch10.addConstraint(Sketcher.Constraint("Vertical", 45))
sketch10.addConstraint(Sketcher.Constraint("Horizontal", 46))
sketch10.addConstraint(Sketcher.Constraint("Vertical", 47))
sketch10.addConstraint(Sketcher.Constraint("Horizontal", 49))
sketch10.addConstraint(Sketcher.Constraint("PointOnObject", 23, 2, -2))
sketch10.addConstraint(Sketcher.Constraint("DistanceY", 22, 2, 22, 1, Q("3.5 mm")))
sketch10.addConstraint(Sketcher.Constraint("DistanceY", 26, 1, 26, 2, Q("3.5 mm")))
sketch10.addConstraint(Sketcher.Constraint("DistanceY", 40, 2, 40, 1, Q("3.5 mm")))
sketch10.addConstraint(Sketcher.Constraint("DistanceY", 45, 1, 45, 2, Q("3.5 mm")))
sketch10.addConstraint(Sketcher.Constraint("DistanceX", -1, 1, 44, 2, Q("7.7 mm")))
sketch10.addConstraint(Sketcher.Constraint("DistanceY", 16, 2, 19, 2, Q("3.5 mm")))
sketch10.addConstraint(Sketcher.Constraint("DistanceY", 22, 2, 19, 2, Q("3.5 mm")))
sketch10.addConstraint(Sketcher.Constraint("DistanceY", 23, 2, 26, 2, Q("3.5 mm")))
sketch10.addConstraint(Sketcher.Constraint("DistanceX", 18, 2, 18, 1, Q("2.211899 mm")))
sketch10.addConstraint(Sketcher.Constraint("DistanceX", 38, 2, 42, 2, Q("1.225 mm")))
sketch10.addConstraint(Sketcher.Constraint("DistanceX", 14, 1, 14, 2, Q("2.269952 mm")))
sketch10.addConstraint(Sketcher.Constraint("DistanceX", 20, 2, 20, 1, Q("2.693149 mm")))
sketch10.addConstraint(Sketcher.Constraint("DistanceX", 27, 2, 27, 1, Q("2.381851 mm")))
sketch10.addConstraint(Sketcher.Constraint("DistanceX", 31, 2, 31, 1, Q("1.313341 mm")))
sketch10.addConstraint(Sketcher.Constraint("DistanceX", 33, 1, 33, 2, Q("1.313341 mm")))
sketch10.addConstraint(Sketcher.Constraint("DistanceX", 37, 1, 37, 2, Q("2.381851 mm")))
sketch10.addConstraint(Sketcher.Constraint("DistanceY", 1, 2, 1, 1, Q("2.463462 mm")))
sketch10.addConstraint(Sketcher.Constraint("DistanceY", 8, 2, 8, 1, Q("2.40625 mm")))
sketch10.addConstraint(Sketcher.Constraint("DistanceX", 14, 2, -1, 1, Q("1.6625 mm")))
sketch10.addConstraint(Sketcher.Constraint("DistanceX", 19, 2, 27, 2, Q("2.411298 mm")))
sketch10.addConstraint(Sketcher.Constraint("DistanceY", 41, 2, 47, 2, Q("0.6125 mm")))
sketch10.addConstraint(Sketcher.Constraint("DistanceY", 41, 2, 50, 2, Q("0.6125 mm")))
sketch10.addConstraint(Sketcher.Constraint("Distance", 15, Q("4.062768 mm")))
sketch10.addConstraint(Sketcher.Constraint("Distance", 19, Q("4.062768 mm")))
sketch10.addConstraint(Sketcher.Constraint("Distance", 41, Q("0.206279 mm")))
sketch10.addConstraint(Sketcher.Constraint("Distance", 42, Q("3.374869 mm")))
sketch10.addConstraint(Sketcher.Constraint("Distance", 48, Q("3.135318 mm")))
sketch10.addConstraint(Sketcher.Constraint("Distance", 50, Q("3.12473 mm")))
sketch10.addConstraint(Sketcher.Constraint("DistanceX", 16, 1, 16, 2, Q("2.635096 mm")))
sketch10.addConstraint(Sketcher.Constraint("DistanceX", 23, 1, 23, 2, Q("0.215385 mm")))
sketch10.addConstraint(Sketcher.Constraint("DistanceX", 29, 1, 29, 2, Q("2.166466 mm")))
sketch10.addConstraint(Sketcher.Constraint("DistanceX", 39, 2, 39, 1, Q("0.215385 mm")))
sketch10.addConstraint(Sketcher.Constraint("DistanceX", 46, 2, 46, 1, Q("0.215385 mm")))
sketch10.addConstraint(Sketcher.Constraint("DistanceX", 49, 2, 49, 1, Q("0.159856 mm")))
sketch10.addConstraint(Sketcher.Constraint("DistanceY", 17, 1, 17, 2, Q("0.215385 mm")))
sketch10.addConstraint(Sketcher.Constraint("DistanceY", 28, 2, 28, 1, Q("0.215385 mm")))
sketch10.addConstraint(Sketcher.Constraint("DistanceY", 30, 2, 30, 1, Q("1.507692 mm")))
sketch10.addConstraint(Sketcher.Constraint("DistanceY", 32, 2, 32, 1, Q("0.215385 mm")))
sketch10.addConstraint(Sketcher.Constraint("DistanceY", 34, 2, 34, 1, Q("1.346154 mm")))
sketch10.addConstraint(Sketcher.Constraint("DistanceY", 38, 1, 38, 2, Q("2.907692 mm")))
sketch10.addConstraint(Sketcher.Constraint("DistanceY", 47, 2, 47, 1, Q("2.907692 mm")))
sketch10.addConstraint(Sketcher.Constraint("DistanceY", -1, 1, 15, 2, Q("49.297272 mm")))
sketch10.addConstraint(Sketcher.Constraint("DistanceY", -1, 1, 38, 2, Q("52.797272 mm")))
sketch10.addConstraint(Sketcher.Constraint("DistanceX", -1, 1, 48, 2, Q("6.311779 mm")))
sketch10.addConstraint(Sketcher.Constraint("DistanceX", 42, 2, 43, 2, Q("1.262861 mm")))
sketch10.addConstraint(Sketcher.Constraint("DistanceY", 43, 2, 42, 2, Q("3.130649 mm")))
pocket8 = doc.addObject("PartDesign::Pocket", "Pocket007")
body.addObject(pocket8)
pocket8.Profile = sketch10
pocket8.Length = 0.03

doc.recompute()
